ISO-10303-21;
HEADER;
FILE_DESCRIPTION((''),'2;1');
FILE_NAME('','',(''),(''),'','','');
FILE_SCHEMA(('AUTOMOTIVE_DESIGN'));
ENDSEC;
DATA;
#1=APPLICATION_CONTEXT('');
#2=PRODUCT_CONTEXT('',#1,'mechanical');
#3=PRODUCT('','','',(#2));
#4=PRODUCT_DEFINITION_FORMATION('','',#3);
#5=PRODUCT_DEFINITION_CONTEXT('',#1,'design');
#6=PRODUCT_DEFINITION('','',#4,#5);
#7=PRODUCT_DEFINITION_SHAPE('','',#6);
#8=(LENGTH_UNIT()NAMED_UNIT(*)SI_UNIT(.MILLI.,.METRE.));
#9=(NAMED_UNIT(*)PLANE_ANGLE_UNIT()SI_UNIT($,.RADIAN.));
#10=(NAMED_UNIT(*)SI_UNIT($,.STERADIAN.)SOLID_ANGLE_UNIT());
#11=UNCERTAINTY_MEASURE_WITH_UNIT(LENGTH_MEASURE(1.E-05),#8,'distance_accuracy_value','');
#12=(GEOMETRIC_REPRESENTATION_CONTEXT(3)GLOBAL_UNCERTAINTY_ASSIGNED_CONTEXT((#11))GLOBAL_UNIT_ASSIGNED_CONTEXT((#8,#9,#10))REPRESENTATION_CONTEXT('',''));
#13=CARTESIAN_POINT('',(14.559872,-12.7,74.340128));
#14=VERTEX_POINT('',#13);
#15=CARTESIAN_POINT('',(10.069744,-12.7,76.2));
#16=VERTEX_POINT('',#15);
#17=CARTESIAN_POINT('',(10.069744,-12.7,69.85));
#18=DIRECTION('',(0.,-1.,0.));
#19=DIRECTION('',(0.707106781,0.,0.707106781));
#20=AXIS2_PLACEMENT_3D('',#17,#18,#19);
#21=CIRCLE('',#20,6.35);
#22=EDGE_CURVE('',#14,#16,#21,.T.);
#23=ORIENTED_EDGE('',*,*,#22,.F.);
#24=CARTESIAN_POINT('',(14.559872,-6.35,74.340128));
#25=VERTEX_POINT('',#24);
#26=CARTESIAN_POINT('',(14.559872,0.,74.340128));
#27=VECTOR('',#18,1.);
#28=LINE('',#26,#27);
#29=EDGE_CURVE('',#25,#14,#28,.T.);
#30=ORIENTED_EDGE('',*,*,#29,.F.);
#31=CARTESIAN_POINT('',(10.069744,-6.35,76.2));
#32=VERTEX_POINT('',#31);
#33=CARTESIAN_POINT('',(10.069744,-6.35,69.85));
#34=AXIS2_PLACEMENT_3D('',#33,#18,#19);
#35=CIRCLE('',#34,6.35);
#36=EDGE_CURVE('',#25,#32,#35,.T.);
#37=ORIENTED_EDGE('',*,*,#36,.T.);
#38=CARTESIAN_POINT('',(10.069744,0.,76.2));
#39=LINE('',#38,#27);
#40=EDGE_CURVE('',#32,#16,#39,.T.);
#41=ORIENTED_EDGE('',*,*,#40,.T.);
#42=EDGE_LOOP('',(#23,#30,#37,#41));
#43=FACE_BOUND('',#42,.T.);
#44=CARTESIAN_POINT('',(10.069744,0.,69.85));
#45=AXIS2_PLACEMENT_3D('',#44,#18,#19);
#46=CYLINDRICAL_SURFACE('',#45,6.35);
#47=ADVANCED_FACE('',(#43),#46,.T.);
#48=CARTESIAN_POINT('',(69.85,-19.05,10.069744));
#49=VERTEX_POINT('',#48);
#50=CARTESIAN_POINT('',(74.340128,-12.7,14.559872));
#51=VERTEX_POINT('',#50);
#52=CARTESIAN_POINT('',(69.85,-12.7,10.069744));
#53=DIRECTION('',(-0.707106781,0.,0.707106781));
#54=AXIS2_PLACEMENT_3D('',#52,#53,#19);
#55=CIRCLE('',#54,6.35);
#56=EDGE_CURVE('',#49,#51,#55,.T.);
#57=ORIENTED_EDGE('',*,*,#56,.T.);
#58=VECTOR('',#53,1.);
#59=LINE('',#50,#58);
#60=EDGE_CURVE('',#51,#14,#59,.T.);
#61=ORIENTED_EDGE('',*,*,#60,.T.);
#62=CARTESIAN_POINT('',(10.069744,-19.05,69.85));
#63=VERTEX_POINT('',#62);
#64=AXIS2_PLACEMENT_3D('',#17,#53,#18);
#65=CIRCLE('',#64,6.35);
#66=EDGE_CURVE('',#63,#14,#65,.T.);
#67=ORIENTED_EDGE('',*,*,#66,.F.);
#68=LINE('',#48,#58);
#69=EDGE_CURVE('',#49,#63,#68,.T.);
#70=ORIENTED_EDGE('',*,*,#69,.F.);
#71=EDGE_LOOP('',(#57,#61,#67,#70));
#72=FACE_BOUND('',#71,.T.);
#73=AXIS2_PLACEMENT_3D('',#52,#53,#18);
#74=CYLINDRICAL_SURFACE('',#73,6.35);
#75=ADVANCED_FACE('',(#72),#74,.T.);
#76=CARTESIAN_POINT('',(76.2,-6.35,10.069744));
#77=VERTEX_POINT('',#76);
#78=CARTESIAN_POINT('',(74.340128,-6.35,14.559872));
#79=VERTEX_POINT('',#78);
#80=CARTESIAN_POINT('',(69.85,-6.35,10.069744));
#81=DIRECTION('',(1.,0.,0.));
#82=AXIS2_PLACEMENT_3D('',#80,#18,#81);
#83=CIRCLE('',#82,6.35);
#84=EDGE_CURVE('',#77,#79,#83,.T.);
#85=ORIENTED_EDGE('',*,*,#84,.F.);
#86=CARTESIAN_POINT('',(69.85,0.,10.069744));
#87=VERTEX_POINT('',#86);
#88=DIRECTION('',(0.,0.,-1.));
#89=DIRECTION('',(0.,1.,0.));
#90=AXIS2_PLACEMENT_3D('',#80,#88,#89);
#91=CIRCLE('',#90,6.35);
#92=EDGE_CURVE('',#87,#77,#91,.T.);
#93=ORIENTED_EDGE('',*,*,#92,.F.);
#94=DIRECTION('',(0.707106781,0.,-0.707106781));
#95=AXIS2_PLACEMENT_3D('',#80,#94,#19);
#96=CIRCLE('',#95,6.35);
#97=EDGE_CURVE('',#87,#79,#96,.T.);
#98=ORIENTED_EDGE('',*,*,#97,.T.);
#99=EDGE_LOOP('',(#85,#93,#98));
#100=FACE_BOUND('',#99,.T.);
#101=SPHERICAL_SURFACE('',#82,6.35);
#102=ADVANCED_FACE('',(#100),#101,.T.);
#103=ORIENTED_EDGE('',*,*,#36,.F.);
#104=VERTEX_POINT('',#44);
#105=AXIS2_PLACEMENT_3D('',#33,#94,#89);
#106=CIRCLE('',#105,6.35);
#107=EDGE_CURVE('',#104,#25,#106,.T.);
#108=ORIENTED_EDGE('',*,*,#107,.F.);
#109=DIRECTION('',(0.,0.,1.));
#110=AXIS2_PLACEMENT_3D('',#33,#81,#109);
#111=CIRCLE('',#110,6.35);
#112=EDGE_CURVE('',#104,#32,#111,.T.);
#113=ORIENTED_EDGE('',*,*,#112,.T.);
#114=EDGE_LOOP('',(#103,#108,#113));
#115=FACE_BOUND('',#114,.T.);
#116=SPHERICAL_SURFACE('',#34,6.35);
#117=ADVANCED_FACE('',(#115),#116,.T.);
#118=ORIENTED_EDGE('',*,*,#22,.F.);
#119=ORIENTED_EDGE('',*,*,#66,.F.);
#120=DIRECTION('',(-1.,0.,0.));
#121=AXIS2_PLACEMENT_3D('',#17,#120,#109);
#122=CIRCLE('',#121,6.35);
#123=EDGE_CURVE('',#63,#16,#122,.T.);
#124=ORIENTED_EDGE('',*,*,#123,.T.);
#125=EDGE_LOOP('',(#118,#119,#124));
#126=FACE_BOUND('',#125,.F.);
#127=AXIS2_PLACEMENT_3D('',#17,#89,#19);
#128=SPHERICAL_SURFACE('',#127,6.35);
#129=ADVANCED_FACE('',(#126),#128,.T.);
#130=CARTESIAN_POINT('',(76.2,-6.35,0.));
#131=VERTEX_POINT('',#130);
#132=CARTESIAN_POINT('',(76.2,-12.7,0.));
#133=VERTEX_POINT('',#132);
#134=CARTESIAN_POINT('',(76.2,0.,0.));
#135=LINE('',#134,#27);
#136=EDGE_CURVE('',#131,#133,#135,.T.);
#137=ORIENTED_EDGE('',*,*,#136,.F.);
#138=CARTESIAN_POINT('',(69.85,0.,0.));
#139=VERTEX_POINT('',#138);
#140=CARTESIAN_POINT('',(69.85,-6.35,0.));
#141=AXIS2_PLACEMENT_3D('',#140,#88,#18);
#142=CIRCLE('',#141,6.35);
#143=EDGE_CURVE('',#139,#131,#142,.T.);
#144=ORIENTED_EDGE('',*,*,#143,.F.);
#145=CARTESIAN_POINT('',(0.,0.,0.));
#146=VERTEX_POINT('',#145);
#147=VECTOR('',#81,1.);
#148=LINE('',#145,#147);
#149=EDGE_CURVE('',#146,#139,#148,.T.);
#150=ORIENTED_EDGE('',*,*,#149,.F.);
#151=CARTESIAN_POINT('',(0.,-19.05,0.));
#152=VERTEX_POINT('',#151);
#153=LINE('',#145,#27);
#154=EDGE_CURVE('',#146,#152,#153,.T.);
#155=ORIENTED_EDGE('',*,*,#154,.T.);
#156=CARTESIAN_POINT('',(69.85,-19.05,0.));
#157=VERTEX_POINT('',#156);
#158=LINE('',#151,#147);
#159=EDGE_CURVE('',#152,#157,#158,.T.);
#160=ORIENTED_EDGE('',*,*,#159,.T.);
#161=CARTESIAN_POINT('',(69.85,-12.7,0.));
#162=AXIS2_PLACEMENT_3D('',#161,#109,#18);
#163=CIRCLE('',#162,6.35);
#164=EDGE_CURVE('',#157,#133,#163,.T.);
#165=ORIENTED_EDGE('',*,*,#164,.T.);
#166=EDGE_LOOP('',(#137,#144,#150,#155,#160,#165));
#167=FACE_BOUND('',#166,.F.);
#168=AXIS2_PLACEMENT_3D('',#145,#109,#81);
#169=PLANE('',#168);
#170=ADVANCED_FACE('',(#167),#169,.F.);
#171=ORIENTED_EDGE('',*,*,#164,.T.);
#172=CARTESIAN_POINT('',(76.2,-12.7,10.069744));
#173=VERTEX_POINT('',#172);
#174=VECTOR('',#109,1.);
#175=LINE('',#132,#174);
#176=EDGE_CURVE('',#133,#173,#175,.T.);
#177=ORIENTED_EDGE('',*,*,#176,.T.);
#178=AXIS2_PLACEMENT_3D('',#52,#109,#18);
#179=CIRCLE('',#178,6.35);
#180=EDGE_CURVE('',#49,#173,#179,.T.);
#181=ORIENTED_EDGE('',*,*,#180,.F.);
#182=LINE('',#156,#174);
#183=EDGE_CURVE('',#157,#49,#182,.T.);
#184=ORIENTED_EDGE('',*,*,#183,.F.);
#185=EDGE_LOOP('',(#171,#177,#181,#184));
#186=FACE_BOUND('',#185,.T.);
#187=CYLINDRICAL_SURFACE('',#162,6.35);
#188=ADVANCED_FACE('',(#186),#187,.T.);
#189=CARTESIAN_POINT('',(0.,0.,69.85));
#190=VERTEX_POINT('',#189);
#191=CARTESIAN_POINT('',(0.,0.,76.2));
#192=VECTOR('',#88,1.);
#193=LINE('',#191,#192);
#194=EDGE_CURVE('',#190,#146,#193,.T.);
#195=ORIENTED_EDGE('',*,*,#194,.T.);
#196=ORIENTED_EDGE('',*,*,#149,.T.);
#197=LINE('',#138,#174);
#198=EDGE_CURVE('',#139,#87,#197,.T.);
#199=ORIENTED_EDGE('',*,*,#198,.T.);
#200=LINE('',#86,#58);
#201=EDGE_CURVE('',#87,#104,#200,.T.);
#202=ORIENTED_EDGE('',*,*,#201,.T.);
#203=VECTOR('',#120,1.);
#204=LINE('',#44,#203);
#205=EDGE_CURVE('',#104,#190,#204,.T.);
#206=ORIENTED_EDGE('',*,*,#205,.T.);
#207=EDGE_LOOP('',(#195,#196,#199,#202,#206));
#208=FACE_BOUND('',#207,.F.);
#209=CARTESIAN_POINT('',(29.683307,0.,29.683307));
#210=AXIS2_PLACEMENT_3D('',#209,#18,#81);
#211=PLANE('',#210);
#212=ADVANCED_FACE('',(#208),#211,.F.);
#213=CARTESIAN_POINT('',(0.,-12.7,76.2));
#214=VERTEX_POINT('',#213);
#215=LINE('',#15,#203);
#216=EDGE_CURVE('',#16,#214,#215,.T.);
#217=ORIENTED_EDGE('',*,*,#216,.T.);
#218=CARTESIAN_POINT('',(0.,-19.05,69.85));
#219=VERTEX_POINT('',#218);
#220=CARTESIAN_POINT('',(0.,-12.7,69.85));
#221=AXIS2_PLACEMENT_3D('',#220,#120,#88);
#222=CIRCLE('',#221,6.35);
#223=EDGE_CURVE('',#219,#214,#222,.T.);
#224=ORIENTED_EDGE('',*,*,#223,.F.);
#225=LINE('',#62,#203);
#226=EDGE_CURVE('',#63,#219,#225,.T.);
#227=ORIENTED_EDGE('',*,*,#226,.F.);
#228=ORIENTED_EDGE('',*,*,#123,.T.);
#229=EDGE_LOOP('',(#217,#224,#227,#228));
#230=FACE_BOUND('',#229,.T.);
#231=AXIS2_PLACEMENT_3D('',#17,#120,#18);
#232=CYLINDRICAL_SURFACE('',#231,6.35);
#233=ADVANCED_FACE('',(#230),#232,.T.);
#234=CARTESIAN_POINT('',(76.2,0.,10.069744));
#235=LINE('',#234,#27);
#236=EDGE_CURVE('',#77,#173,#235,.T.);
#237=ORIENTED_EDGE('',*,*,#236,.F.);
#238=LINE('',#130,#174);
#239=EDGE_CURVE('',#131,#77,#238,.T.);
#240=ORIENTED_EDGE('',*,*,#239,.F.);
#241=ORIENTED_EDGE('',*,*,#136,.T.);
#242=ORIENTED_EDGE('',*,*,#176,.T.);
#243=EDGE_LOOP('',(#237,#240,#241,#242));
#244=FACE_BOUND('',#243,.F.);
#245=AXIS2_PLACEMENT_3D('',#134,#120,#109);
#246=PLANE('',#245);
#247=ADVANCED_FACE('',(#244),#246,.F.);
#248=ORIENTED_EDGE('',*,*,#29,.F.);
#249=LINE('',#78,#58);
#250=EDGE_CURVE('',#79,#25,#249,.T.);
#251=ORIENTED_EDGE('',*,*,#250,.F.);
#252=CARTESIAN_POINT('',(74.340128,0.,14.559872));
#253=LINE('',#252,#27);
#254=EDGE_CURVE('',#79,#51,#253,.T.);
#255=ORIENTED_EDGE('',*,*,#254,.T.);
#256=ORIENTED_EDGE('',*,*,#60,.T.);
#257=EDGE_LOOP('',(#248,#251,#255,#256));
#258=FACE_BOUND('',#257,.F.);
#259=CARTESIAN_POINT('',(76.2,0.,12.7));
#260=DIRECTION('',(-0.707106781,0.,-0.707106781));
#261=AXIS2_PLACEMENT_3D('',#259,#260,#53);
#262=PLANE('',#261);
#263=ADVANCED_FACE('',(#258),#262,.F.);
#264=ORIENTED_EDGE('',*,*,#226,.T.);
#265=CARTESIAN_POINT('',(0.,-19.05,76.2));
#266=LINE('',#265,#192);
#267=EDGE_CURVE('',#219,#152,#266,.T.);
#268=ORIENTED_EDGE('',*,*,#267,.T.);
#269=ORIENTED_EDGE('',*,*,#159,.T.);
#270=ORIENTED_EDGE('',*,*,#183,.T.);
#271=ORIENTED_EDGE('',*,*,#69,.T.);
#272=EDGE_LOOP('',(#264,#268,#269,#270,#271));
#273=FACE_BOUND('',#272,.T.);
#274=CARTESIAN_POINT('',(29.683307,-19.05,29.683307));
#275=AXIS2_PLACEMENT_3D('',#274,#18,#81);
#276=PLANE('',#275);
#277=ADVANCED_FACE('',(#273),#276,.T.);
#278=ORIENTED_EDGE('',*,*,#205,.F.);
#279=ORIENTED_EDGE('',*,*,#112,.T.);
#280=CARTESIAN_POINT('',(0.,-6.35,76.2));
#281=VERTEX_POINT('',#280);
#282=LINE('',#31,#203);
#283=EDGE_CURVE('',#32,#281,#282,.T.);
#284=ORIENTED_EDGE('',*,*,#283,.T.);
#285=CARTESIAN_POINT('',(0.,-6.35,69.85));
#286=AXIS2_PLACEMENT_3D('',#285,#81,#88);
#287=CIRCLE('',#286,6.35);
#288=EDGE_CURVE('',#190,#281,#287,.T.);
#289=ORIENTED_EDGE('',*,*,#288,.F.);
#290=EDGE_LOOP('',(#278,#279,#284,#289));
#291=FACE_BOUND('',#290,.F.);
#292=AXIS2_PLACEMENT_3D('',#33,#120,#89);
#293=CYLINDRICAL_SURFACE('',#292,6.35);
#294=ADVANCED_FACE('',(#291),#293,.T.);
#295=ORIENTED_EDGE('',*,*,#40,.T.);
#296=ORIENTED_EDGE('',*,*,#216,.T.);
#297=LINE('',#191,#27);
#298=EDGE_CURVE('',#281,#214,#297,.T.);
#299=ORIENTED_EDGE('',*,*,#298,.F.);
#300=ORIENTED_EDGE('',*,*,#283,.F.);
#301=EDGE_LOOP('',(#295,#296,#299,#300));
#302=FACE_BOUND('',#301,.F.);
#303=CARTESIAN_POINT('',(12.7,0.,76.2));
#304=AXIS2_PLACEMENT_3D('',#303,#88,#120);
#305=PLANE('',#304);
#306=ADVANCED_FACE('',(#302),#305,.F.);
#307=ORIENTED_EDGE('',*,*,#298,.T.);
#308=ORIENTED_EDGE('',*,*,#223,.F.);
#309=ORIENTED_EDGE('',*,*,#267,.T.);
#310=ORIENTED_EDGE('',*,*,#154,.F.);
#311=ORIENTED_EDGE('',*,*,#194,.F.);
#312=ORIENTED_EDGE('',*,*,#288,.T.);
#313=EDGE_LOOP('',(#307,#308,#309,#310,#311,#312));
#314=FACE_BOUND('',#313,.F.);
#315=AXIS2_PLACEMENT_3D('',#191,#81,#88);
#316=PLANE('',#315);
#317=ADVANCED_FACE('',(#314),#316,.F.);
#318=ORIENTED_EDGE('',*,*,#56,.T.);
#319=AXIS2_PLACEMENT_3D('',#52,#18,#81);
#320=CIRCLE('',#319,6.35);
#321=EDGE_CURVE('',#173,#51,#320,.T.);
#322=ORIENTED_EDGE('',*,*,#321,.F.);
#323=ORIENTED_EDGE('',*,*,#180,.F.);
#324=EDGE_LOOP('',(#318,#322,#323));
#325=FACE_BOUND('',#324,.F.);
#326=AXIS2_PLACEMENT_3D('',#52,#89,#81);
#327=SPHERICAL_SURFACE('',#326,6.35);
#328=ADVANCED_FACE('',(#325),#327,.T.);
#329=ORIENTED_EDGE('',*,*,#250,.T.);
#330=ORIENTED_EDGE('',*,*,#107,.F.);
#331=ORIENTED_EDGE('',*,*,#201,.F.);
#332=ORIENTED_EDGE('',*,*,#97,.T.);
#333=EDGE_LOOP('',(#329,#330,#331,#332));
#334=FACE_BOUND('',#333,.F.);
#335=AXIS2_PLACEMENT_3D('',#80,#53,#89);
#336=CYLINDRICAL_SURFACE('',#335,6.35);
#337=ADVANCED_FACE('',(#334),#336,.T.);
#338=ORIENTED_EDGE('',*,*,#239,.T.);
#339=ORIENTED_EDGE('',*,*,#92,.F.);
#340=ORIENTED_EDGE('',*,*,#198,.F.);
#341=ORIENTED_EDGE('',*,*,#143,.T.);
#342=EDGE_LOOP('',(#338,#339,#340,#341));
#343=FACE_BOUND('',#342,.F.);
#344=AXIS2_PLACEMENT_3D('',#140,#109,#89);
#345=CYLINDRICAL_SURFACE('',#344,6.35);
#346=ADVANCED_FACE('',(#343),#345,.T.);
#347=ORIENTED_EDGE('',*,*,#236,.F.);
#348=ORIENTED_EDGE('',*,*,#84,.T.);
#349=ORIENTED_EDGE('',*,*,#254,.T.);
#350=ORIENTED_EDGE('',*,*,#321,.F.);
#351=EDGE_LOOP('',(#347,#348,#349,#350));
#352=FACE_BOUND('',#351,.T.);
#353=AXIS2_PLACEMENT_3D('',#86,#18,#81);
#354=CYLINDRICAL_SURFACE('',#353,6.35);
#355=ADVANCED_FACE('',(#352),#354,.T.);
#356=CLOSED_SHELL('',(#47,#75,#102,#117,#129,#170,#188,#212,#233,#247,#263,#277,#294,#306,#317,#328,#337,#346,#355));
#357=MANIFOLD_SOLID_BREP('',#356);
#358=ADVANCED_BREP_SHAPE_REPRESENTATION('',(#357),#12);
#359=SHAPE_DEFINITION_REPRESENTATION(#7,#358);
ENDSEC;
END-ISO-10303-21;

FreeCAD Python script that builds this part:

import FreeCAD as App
import Part
import Sketcher
from FreeCAD import Vector
Q = App.Units.Quantity


def edges_at(feature, points):
    """Names of the edges that pass closest to the given points."""
    edges = feature.Shape.Edges
    near = lambda p: min(range(len(edges)), key=lambda i: edges[i].distToShape(Part.Vertex(*p))[0])
    return sorted({f"Edge{near(p) + 1}" for p in points})


def add_polygon(sketch, points):
    """Adds a closed chain of lines whose ends are joined by coincident constraints."""
    first, n = sketch.GeometryCount, len(points)
    for a, b in zip(points, points[1:] + points[:1]):
        sketch.addGeometry(Part.LineSegment(App.Vector(*a, 0), App.Vector(*b, 0)), False)
    for i in range(n):
        sketch.addConstraint(Sketcher.Constraint("Coincident", first + i, 2, first + (i + 1) % n, 1))

doc = App.newDocument("Part")
body = doc.addObject("PartDesign::Body", "Body")

sketch1 = doc.addObject("Sketcher::SketchObject", "Sketch")
body.addObject(sketch1)
sketch1.AttachmentSupport = (doc.XZ_Plane, [""])
sketch1.MapMode = "FlatFace"
add_polygon(sketch1, [(0, 76), (0, 0), (76, 0), (76, 13), (13, 76)])
sketch1.addConstraint([
    Sketcher.Constraint("Vertical", 0),
    Sketcher.Constraint("Horizontal", 1),
    Sketcher.Constraint("Vertical", 2),
    Sketcher.Constraint("Horizontal", 4),
    Sketcher.Constraint("Coincident", 0, 2, -1, 1),
    Sketcher.Constraint("Equal", 1, 0),
    Sketcher.Constraint("Equal", 4, 2),
    Sketcher.Constraint("DistanceX", 1, 1, 1, 2, Q("3 in")),
    Sketcher.Constraint("DistanceX", 4, 2, 4, 1, Q("0.5 in")),
])
pad1 = doc.addObject("PartDesign::Pad", "Pad")
body.addObject(pad1)
pad1.Profile = sketch1
pad1.Length = Q("0.75 in")
doc.recompute()

fillet = doc.addObject("PartDesign::Fillet", "Fillet")
body.addObject(fillet)
fillet.Base = (pad1, edges_at(pad1, [(12.7, -9.525, 76.2), (76.2, -9.525, 12.7)]))
fillet.Radius = Q("0.25 in")
doc.recompute()

fillet2 = doc.addObject("PartDesign::Fillet", "Fillet001")
body.addObject(fillet2)
fillet2.Base = (fillet, edges_at(fillet, [(44.45, -19.05, 44.45), (44.45, 0, 44.45)]))
fillet2.Radius = Q("0.25 in")

doc.recompute()
